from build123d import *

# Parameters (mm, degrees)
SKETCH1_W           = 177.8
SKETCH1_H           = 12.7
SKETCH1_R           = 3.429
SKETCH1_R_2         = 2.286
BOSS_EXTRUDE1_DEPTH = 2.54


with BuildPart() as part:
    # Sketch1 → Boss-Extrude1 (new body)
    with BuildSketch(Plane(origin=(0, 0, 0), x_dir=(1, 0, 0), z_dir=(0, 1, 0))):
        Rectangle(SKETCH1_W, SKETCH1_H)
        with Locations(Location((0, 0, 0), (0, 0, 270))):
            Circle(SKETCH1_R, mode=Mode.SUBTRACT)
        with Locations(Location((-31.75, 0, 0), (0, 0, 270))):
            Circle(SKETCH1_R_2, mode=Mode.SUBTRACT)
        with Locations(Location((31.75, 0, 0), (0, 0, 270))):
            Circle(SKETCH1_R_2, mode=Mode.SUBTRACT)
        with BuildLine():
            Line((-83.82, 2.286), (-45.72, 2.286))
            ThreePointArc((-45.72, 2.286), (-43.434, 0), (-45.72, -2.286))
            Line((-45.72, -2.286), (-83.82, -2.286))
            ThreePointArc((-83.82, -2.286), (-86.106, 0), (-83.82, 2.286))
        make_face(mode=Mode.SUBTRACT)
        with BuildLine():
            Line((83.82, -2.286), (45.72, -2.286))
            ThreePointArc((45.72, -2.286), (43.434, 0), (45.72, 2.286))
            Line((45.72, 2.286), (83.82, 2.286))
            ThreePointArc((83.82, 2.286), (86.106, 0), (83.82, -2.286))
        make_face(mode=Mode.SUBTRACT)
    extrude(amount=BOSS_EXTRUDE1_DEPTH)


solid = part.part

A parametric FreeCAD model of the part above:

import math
import FreeCAD as App
import Part
import Sketcher

V = App.Vector
Q = App.Units.Quantity

doc = App.newDocument("Part")
body = doc.addObject("PartDesign::Body", "Body")

sketch1 = body.newObject("Sketcher::SketchObject", "Sketch")
sketch1.AttachmentSupport = (doc.getObject("XZ_Plane"), [""])
sketch1.MapMode = "FlatFace"
sketch1.addGeometry(Part.LineSegment(V(-88.9, -6.3, 0), V(-88.9, 6.3, 0)), False)
sketch1.addGeometry(Part.LineSegment(V(-88.9, 6.3, 0), V(88.9, 6.3, 0)), False)
sketch1.addGeometry(Part.LineSegment(V(88.9, 6.3, 0), V(88.9, -6.3, 0)), False)
sketch1.addGeometry(Part.LineSegment(V(88.9, -6.3, 0), V(-88.9, -6.3, 0)), False)
sketch1.addGeometry(Part.ArcOfCircle(Part.Circle(V(-83.8, 0, 0), V(0, 0, 1), 2.3), math.radians(90), math.radians(270)), False)
sketch1.addGeometry(Part.LineSegment(V(-83.8, -2.3, 0), V(-45.7, -2.3, 0)), False)
sketch1.addGeometry(Part.ArcOfCircle(Part.Circle(V(-45.7, 0, 0), V(0, 0, 1), 2.3), math.radians(-90), math.radians(90)), False)
sketch1.addGeometry(Part.LineSegment(V(-45.7, 2.3, 0), V(-83.8, 2.3, 0)), False)
sketch1.addGeometry(Part.Circle(V(-31.8, 0, 0), V(0, 0, 1), 2.3), False)
sketch1.addGeometry(Part.Circle(V(0, 0, 0), V(0, 0, 1), 3.4), False)
sketch1.addGeometry(Part.Circle(V(31.8, 0, 0), V(0, 0, 1), 2.3), False)
sketch1.addGeometry(Part.ArcOfCircle(Part.Circle(V(83.8, 0, 0), V(0, 0, 1), 2.3), math.radians(-90), math.radians(90)), False)
sketch1.addGeometry(Part.LineSegment(V(83.8, 2.3, 0), V(45.7, 2.3, 0)), False)
sketch1.addGeometry(Part.ArcOfCircle(Part.Circle(V(45.7, 0, 0), V(0, 0, 1), 2.3), math.radians(90), math.radians(270)), False)
sketch1.addGeometry(Part.LineSegment(V(45.7, -2.3, 0), V(83.8, -2.3, 0)), False)
sketch1.addConstraint(Sketcher.Constraint("Coincident", 0, 2, 1, 1))
sketch1.addConstraint(Sketcher.Constraint("Coincident", 1, 2, 2, 1))
sketch1.addConstraint(Sketcher.Constraint("Coincident", 2, 2, 3, 1))
sketch1.addConstraint(Sketcher.Constraint("Coincident", 3, 2, 0, 1))
sketch1.addConstraint(Sketcher.Constraint("Tangent", 4, 2, 5, 1))
sketch1.addConstraint(Sketcher.Constraint("Tangent", 5, 2, 6, 1))
sketch1.addConstraint(Sketcher.Constraint("Tangent", 6, 2, 7, 1))
sketch1.addConstraint(Sketcher.Constraint("Tangent", 7, 2, 4, 1))
sketch1.addConstraint(Sketcher.Constraint("Tangent", 11, 2, 12, 1))
sketch1.addConstraint(Sketcher.Constraint("Tangent", 12, 2, 13, 1))
sketch1.addConstraint(Sketcher.Constraint("Tangent", 13, 2, 14, 1))
sketch1.addConstraint(Sketcher.Constraint("Tangent", 14, 2, 11, 1))
sketch1.addConstraint(Sketcher.Constraint("Vertical", 0))
sketch1.addConstraint(Sketcher.Constraint("Horizontal", 1))
sketch1.addConstraint(Sketcher.Constraint("Vertical", 2))
sketch1.addConstraint(Sketcher.Constraint("Horizontal", 3))
sketch1.addConstraint(Sketcher.Constraint("Horizontal", 5))
sketch1.addConstraint(Sketcher.Constraint("Horizontal", 7))
sketch1.addConstraint(Sketcher.Constraint("Horizontal", 12))
sketch1.addConstraint(Sketcher.Constraint("Horizontal", 14))
sketch1.addConstraint(Sketcher.Constraint("Coincident", 9, 3, -1, 1))
sketch1.addConstraint(Sketcher.Constraint("Equal", 6, 8))
sketch1.addConstraint(Sketcher.Constraint("Equal", 8, 10))
sketch1.addConstraint(Sketcher.Constraint("Equal", 10, 11))
sketch1.addConstraint(Sketcher.Constraint("Symmetric", 8, 3, 10, 3, -1, 1))
sketch1.addConstraint(Sketcher.Constraint("Symmetric", 4, 3, 11, 3, -1, 1))
sketch1.addConstraint(Sketcher.Constraint("Symmetric", 0, 2, 2, 2, -1, 1))
sketch1.addConstraint(Sketcher.Constraint("Symmetric", 6, 3, 13, 3, -2))
sketch1.addConstraint(Sketcher.Constraint("PointOnObject", 8, 3, -1))
sketch1.addConstraint(Sketcher.Constraint("Diameter", 8, Q("0.18 in")))
sketch1.addConstraint(Sketcher.Constraint("Diameter", 9, Q("0.27 in")))
sketch1.addConstraint(Sketcher.Constraint("DistanceX", 1, 1, 1, 2, Q("7 in")))
sketch1.addConstraint(Sketcher.Constraint("DistanceX", 5, 1, 5, 2, Q("1.5 in")))
sketch1.addConstraint(Sketcher.Constraint("DistanceY", 0, 1, 0, 2, Q("0.5 in")))
sketch1.addConstraint(Sketcher.Constraint("DistanceX", 4, 3, -1, 1, Q("3.3 in")))
sketch1.addConstraint(Sketcher.Constraint("DistanceX", 8, 3, 10, 3, Q("2.5 in")))
pad1 = body.newObject("PartDesign::Pad", "Pad")
pad1.Profile = sketch1
pad1.Length = Q("0.1 in")
pad1.Reversed = True

doc.recompute()
